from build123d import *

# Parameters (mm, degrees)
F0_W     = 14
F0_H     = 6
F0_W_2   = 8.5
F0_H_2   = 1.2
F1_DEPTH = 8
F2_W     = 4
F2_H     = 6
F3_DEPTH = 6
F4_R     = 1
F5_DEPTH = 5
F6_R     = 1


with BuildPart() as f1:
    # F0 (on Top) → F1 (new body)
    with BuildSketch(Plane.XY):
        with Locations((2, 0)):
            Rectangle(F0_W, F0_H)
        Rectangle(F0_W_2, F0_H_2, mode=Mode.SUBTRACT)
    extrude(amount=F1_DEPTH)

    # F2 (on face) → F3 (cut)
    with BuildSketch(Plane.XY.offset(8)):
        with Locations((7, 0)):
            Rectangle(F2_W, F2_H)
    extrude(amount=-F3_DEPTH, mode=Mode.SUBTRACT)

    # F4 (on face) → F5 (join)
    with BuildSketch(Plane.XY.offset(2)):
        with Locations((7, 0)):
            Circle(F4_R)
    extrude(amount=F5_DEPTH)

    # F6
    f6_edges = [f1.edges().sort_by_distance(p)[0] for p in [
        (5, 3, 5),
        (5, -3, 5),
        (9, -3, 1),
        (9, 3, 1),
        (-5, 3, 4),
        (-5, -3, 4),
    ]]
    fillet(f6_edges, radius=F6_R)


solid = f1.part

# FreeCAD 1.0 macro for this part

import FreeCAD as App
import Part
import Sketcher
from FreeCAD import Vector
Q = App.Units.Quantity


def edges_at(feature, points):
    """Names of the edges that pass closest to the given points."""
    edges = feature.Shape.Edges
    near = lambda p: min(range(len(edges)), key=lambda i: edges[i].distToShape(Part.Vertex(*p))[0])
    return sorted({f"Edge{near(p) + 1}" for p in points})

doc = App.newDocument("Part")
body = doc.addObject("PartDesign::Body", "Body")

# Sketch on XY plane
sketch1 = body.newObject("Sketcher::SketchObject", "Sketch")
sketch1.AttachmentSupport = (doc.getObject("XY_Plane"), [""])
sketch1.MapMode = "FlatFace"
sketch1.addGeometry([
    Part.LineSegment(Vector(-5, 3, 0), Vector(-5, -3, 0)),  # 0
    Part.LineSegment(Vector(-5, -3, 0), Vector(9, -3, 0)),  # 1
    Part.LineSegment(Vector(9, -3, 0), Vector(9, 3, 0)),  # 2
    Part.LineSegment(Vector(9, 3, 0), Vector(-5, 3, 0)),  # 3
    Part.LineSegment(Vector(4.25, -0.6, 0), Vector(-4.25, -0.6, 0)),  # 4
    Part.LineSegment(Vector(-4.25, -0.6, 0), Vector(-4.25, 0.6, 0)),  # 5
    Part.LineSegment(Vector(-4.25, 0.6, 0), Vector(4.25, 0.6, 0)),  # 6
    Part.LineSegment(Vector(4.25, 0.6, 0), Vector(4.25, -0.6, 0)),  # 7
], False)
sketch1.addConstraint([
    Sketcher.Constraint("Coincident", 0, 2, 1, 1),
    Sketcher.Constraint("Coincident", 1, 2, 2, 1),
    Sketcher.Constraint("Coincident", 2, 2, 3, 1),
    Sketcher.Constraint("Coincident", 3, 2, 0, 1),
    Sketcher.Constraint("Coincident", 4, 2, 5, 1),
    Sketcher.Constraint("Coincident", 5, 2, 6, 1),
    Sketcher.Constraint("Coincident", 6, 2, 7, 1),
    Sketcher.Constraint("Coincident", 7, 2, 4, 1),
    Sketcher.Constraint("Vertical", 0),
    Sketcher.Constraint("Horizontal", 1),
    Sketcher.Constraint("Vertical", 2),
    Sketcher.Constraint("Horizontal", 3),
    Sketcher.Constraint("Horizontal", 4),
    Sketcher.Constraint("Vertical", 5),
    Sketcher.Constraint("Horizontal", 6),
    Sketcher.Constraint("Vertical", 7),
    Sketcher.Constraint("Symmetric", 4, 2, 6, 2, -1, 1),
    Sketcher.Constraint("DistanceX", 1, 1, 1, 2, Q("14 mm")),
    Sketcher.Constraint("DistanceY", 0, 2, 0, 1, Q("6 mm")),
    Sketcher.Constraint("DistanceX", 4, 2, 4, 1, Q("8.5 mm")),
    Sketcher.Constraint("DistanceY", 5, 1, 5, 2, Q("1.2 mm")),
    Sketcher.Constraint("DistanceX", 0, 2, -1, 1, Q("5 mm")),
    Sketcher.Constraint("DistanceY", 0, 2, -1, 1, Q("3 mm")),
])
pad1 = body.newObject("PartDesign::Pad", "Pad")
pad1.Profile = sketch1
pad1.Length = 8

# Sketch on XY plane
sketch2 = body.newObject("Sketcher::SketchObject", "Sketch001")
sketch2.AttachmentSupport = (doc.getObject("XY_Plane"), [""])
sketch2.MapMode = "FlatFace"
sketch2.AttachmentOffset = App.Placement(Vector(0, 0, 8), App.Rotation())
sketch2.addGeometry([
    Part.LineSegment(Vector(5, 3, 0), Vector(5, -3, 0)),
    Part.LineSegment(Vector(5, -3, 0), Vector(9, -3, 0)),
    Part.LineSegment(Vector(9, -3, 0), Vector(9, 3, 0)),
    Part.LineSegment(Vector(9, 3, 0), Vector(5, 3, 0)),
], False)
sketch2.addConstraint([
    Sketcher.Constraint("Coincident", 0, 2, 1, 1),
    Sketcher.Constraint("Coincident", 1, 2, 2, 1),
    Sketcher.Constraint("Coincident", 2, 2, 3, 1),
    Sketcher.Constraint("Coincident", 3, 2, 0, 1),
    Sketcher.Constraint("Vertical", 0),
    Sketcher.Constraint("Horizontal", 1),
    Sketcher.Constraint("Vertical", 2),
    Sketcher.Constraint("Horizontal", 3),
    Sketcher.Constraint("DistanceX", 1, 1, 1, 2, Q("4 mm")),
    Sketcher.Constraint("DistanceY", 0, 2, 0, 1, Q("6 mm")),
    Sketcher.Constraint("DistanceX", -1, 1, 0, 2, Q("5 mm")),
    Sketcher.Constraint("DistanceY", 0, 2, -1, 1, Q("3 mm")),
])
pocket1 = body.newObject("PartDesign::Pocket", "Pocket")
pocket1.Profile = sketch2
pocket1.Length = 6

# Sketch on XY plane
sketch3 = body.newObject("Sketcher::SketchObject", "Sketch002")
sketch3.AttachmentSupport = (doc.getObject("XY_Plane"), [""])
sketch3.MapMode = "FlatFace"
sketch3.AttachmentOffset = App.Placement(Vector(0, 0, 2), App.Rotation())
sketch3.addGeometry(Part.Circle(Vector(7, 0, 0), Vector(0, 0, 1), 1), False)
sketch3.addConstraint([
    Sketcher.Constraint("PointOnObject", 0, 3, -1),
    Sketcher.Constraint("Diameter", 0, Q("2 mm")),
    Sketcher.Constraint("DistanceX", -1, 1, 0, 3, Q("7 mm")),
])
pad2 = body.newObject("PartDesign::Pad", "Pad001")
pad2.Profile = sketch3
pad2.Length = 5
doc.recompute()

fillet = body.newObject("PartDesign::Fillet", "Fillet")
fillet.Base = (pad2, edges_at(pad2, [
    (5, 3, 5),
    (5, -3, 5),
    (9, -3, 1),
    (9, 3, 1),
    (-5, 3, 4),
    (-5, -3, 4),
]))
fillet.Radius = 1

doc.recompute()
